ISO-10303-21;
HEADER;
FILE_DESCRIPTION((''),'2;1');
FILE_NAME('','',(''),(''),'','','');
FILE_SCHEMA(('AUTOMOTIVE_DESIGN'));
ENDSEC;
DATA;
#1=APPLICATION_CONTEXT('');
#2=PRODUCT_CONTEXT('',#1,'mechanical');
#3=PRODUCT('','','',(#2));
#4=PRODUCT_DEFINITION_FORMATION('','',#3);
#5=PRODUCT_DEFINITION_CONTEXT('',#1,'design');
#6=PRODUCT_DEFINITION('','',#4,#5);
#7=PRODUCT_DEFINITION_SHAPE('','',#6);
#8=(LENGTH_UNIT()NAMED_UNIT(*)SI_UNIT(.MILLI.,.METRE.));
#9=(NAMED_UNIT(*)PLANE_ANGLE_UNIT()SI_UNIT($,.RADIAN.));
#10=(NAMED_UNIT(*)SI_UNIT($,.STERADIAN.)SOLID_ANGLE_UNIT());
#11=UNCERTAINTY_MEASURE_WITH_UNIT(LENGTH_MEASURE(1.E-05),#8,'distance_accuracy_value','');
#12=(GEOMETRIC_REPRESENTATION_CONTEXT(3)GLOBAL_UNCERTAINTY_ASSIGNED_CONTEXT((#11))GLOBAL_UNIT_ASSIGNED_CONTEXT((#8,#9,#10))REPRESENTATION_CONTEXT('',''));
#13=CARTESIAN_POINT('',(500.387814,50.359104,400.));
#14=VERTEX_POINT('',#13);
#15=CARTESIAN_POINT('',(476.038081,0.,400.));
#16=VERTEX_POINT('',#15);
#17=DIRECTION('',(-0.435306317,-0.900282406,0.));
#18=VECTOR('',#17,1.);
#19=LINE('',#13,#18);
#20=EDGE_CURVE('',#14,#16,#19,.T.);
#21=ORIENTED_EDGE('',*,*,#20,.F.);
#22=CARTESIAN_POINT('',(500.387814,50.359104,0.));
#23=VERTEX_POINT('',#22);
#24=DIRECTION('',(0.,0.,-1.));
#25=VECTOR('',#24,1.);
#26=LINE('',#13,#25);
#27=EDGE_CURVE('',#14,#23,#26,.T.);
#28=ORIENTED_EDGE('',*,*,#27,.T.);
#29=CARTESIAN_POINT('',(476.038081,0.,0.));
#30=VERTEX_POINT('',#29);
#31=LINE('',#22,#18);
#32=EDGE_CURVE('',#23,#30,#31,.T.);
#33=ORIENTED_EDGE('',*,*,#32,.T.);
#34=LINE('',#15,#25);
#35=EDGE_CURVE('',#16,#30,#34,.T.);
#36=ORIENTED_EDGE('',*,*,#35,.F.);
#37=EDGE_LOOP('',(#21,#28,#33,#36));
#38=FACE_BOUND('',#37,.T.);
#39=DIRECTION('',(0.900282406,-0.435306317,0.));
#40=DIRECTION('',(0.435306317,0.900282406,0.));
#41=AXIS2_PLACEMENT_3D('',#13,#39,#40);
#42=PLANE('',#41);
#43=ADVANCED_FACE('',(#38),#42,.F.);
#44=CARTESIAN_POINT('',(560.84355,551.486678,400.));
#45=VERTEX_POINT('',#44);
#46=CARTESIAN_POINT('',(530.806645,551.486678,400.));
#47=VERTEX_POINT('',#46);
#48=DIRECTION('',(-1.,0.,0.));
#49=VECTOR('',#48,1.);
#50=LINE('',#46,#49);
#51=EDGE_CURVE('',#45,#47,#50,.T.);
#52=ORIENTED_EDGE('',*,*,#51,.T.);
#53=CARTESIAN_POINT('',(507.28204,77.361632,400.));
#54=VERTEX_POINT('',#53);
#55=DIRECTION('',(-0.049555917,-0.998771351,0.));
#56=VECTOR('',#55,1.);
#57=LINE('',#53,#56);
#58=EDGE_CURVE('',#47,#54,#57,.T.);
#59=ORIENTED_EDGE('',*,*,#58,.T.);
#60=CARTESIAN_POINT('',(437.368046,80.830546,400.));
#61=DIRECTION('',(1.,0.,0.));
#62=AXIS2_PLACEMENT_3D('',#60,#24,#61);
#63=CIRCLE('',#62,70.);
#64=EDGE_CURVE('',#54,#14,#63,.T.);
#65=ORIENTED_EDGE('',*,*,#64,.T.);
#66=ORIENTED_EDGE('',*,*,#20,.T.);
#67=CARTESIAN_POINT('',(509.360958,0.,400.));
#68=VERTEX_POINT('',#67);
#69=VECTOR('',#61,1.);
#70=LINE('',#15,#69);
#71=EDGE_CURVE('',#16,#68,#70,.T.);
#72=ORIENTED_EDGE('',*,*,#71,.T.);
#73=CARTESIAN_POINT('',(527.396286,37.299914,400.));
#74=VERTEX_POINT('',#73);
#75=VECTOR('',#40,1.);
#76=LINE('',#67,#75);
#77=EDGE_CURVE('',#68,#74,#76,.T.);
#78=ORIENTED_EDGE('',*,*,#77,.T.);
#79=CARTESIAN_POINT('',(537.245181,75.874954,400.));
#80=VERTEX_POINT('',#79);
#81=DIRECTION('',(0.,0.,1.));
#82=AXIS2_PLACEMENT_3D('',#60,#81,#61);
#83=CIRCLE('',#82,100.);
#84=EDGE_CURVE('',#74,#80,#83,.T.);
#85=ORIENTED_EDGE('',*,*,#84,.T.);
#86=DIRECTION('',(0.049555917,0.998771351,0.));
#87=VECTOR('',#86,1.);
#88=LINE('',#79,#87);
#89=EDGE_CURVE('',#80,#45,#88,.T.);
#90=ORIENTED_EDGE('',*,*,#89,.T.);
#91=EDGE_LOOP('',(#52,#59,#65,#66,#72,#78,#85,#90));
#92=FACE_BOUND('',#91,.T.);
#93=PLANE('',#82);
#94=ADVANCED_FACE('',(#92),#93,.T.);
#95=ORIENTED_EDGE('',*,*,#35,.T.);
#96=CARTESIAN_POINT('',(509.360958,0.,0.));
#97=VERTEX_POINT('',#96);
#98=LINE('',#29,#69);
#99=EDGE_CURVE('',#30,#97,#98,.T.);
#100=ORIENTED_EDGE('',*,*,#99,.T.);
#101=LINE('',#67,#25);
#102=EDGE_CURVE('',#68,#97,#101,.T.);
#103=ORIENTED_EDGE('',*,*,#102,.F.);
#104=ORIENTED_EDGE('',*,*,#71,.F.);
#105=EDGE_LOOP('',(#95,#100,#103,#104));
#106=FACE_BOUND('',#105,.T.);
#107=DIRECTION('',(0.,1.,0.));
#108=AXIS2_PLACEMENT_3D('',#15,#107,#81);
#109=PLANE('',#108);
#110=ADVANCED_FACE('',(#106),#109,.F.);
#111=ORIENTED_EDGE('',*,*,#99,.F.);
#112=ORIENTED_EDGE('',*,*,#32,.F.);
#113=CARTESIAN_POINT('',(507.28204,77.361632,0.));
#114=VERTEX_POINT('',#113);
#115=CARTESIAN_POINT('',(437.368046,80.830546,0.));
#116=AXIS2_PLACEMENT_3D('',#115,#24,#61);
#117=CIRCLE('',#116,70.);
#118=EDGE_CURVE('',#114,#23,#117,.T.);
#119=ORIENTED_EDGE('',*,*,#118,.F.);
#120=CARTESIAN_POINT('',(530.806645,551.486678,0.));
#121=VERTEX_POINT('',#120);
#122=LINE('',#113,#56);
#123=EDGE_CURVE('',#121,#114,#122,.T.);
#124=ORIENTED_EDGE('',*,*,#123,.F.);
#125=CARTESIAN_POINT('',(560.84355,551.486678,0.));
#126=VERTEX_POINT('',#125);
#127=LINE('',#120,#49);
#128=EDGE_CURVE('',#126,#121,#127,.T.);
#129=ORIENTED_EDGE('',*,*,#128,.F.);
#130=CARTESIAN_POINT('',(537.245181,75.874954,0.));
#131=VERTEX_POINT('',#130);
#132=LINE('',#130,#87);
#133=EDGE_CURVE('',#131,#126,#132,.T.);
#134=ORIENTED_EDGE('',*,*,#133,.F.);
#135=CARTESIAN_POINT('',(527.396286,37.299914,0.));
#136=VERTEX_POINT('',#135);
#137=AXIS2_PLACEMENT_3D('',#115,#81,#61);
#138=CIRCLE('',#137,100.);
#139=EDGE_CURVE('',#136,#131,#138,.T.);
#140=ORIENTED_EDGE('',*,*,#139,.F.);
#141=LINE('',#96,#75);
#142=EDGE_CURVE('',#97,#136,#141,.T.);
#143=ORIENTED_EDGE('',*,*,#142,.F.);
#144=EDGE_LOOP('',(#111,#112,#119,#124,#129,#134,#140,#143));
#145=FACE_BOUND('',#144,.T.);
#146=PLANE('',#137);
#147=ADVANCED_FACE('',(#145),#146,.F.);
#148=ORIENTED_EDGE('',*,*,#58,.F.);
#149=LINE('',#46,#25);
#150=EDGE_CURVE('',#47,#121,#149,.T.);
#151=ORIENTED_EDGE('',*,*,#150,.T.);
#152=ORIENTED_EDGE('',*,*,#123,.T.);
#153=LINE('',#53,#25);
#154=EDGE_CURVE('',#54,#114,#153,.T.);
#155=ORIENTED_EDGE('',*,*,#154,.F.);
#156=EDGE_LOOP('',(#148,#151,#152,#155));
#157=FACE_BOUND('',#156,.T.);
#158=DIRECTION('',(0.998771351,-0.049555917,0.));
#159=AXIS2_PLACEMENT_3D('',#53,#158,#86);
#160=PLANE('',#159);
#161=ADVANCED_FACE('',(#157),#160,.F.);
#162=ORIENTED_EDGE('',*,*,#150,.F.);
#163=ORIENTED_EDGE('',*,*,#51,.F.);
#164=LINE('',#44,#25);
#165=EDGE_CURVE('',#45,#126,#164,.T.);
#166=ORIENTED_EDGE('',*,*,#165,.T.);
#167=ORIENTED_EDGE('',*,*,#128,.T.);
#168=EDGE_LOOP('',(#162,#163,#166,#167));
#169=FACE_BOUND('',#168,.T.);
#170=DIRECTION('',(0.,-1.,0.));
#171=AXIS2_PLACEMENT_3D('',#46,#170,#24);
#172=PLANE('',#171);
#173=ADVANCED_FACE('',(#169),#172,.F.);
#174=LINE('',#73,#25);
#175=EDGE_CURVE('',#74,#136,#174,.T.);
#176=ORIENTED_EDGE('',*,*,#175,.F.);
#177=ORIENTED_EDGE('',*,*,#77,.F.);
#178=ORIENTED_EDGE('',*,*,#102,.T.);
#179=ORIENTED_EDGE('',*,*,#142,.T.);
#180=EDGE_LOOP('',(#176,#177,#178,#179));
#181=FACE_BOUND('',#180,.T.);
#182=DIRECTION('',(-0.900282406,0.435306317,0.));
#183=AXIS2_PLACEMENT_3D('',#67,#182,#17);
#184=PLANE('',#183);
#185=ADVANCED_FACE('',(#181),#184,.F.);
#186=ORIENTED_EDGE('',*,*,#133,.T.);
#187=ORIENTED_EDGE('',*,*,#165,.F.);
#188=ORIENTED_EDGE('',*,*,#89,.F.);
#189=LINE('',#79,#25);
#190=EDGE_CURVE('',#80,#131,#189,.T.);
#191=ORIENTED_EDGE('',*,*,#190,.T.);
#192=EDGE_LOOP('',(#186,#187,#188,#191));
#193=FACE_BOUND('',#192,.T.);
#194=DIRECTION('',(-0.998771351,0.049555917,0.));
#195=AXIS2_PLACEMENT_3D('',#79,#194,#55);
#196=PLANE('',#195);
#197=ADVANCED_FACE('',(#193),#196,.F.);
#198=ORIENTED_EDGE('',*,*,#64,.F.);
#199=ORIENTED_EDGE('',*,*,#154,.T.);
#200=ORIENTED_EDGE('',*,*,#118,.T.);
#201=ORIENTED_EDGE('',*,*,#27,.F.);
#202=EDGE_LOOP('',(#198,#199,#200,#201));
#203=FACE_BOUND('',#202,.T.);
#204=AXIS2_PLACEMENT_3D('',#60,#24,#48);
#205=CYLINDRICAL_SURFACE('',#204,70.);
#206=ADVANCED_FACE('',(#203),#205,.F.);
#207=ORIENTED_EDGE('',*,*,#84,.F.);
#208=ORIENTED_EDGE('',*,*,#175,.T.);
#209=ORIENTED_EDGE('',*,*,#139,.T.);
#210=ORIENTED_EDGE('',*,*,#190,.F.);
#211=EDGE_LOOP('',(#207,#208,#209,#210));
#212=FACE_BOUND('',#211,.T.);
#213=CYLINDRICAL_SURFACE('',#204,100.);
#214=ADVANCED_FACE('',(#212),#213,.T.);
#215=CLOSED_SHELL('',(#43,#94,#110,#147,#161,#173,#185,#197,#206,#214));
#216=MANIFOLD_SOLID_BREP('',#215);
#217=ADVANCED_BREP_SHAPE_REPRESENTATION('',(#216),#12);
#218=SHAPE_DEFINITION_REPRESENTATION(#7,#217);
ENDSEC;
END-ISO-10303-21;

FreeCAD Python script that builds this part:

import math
import FreeCAD as App
import Part
import Sketcher
from FreeCAD import Vector
Q = App.Units.Quantity

doc = App.newDocument("Part")
body = doc.addObject("PartDesign::Body", "Body")

sketch1 = body.newObject("Sketcher::SketchObject", "Sketch")
sketch1.AttachmentSupport = (doc.getObject("XY_Plane"), [""])
sketch1.MapMode = "FlatFace"
sketch1.addGeometry(Part.LineSegment(Vector(561, 551, 0), Vector(531, 551, 0)), False)
sketch1.addGeometry(Part.LineSegment(Vector(531, 551, 0), Vector(507, 77, 0)), False)
sketch1.addGeometry(Part.ArcOfCircle(Part.Circle(Vector(437, 81, 0), Vector(0, 0, 1), 70), math.radians(-26), math.radians(-3)), False)
sketch1.addGeometry(Part.LineSegment(Vector(500, 50, 0), Vector(476, 0, 0)), False)
sketch1.addGeometry(Part.LineSegment(Vector(476, 0, 0), Vector(509, 0, 0)), False)
sketch1.addGeometry(Part.LineSegment(Vector(509, 0, 0), Vector(527, 37, 0)), False)
sketch1.addGeometry(Part.ArcOfCircle(Part.Circle(Vector(437, 81, 0), Vector(0, 0, 1), 100), math.radians(-26), math.radians(-3)), False)
sketch1.addGeometry(Part.LineSegment(Vector(537, 76, 0), Vector(561, 551, 0)), False)
sketch1.addConstraint(Sketcher.Constraint("Coincident", 0, 2, 1, 1))
sketch1.addConstraint(Sketcher.Constraint("Tangent", 1, 2, 2, 2))
sketch1.addConstraint(Sketcher.Constraint("Tangent", 2, 1, 3, 1))
sketch1.addConstraint(Sketcher.Constraint("Coincident", 3, 2, 4, 1))
sketch1.addConstraint(Sketcher.Constraint("Coincident", 4, 2, 5, 1))
sketch1.addConstraint(Sketcher.Constraint("Tangent", 5, 2, 6, 1))
sketch1.addConstraint(Sketcher.Constraint("Tangent", 6, 2, 7, 1))
sketch1.addConstraint(Sketcher.Constraint("Coincident", 7, 2, 0, 1))
sketch1.addConstraint(Sketcher.Constraint("Horizontal", 0))
sketch1.addConstraint(Sketcher.Constraint("Horizontal", 4))
sketch1.addConstraint(Sketcher.Constraint("Coincident", 6, 3, 2, 3))
sketch1.addConstraint(Sketcher.Constraint("PointOnObject", 3, 2, -1))
sketch1.addConstraint(Sketcher.Constraint("Parallel", 3, 5))
sketch1.addConstraint(Sketcher.Constraint("Parallel", 1, 7))
sketch1.addConstraint(Sketcher.Constraint("Radius", 2, Q("70 mm")))
sketch1.addConstraint(Sketcher.Constraint("Radius", 6, Q("100 mm")))
sketch1.addConstraint(Sketcher.Constraint("Distance", 7, Q("476.196802 mm")))
sketch1.addConstraint(Sketcher.Constraint("DistanceX", 2, 3, 0, 2, Q("93.438599 mm")))
sketch1.addConstraint(Sketcher.Constraint("DistanceX", 3, 2, 6, 2, Q("61.207099 mm")))
sketch1.addConstraint(Sketcher.Constraint("Distance", 5, Q("41.431349 mm")))
sketch1.addConstraint(Sketcher.Constraint("DistanceX", -1, 1, 1, 2, Q("507.28204 mm")))
pad1 = body.newObject("PartDesign::Pad", "Pad")
pad1.Profile = sketch1
pad1.Length = 400

doc.recompute()
